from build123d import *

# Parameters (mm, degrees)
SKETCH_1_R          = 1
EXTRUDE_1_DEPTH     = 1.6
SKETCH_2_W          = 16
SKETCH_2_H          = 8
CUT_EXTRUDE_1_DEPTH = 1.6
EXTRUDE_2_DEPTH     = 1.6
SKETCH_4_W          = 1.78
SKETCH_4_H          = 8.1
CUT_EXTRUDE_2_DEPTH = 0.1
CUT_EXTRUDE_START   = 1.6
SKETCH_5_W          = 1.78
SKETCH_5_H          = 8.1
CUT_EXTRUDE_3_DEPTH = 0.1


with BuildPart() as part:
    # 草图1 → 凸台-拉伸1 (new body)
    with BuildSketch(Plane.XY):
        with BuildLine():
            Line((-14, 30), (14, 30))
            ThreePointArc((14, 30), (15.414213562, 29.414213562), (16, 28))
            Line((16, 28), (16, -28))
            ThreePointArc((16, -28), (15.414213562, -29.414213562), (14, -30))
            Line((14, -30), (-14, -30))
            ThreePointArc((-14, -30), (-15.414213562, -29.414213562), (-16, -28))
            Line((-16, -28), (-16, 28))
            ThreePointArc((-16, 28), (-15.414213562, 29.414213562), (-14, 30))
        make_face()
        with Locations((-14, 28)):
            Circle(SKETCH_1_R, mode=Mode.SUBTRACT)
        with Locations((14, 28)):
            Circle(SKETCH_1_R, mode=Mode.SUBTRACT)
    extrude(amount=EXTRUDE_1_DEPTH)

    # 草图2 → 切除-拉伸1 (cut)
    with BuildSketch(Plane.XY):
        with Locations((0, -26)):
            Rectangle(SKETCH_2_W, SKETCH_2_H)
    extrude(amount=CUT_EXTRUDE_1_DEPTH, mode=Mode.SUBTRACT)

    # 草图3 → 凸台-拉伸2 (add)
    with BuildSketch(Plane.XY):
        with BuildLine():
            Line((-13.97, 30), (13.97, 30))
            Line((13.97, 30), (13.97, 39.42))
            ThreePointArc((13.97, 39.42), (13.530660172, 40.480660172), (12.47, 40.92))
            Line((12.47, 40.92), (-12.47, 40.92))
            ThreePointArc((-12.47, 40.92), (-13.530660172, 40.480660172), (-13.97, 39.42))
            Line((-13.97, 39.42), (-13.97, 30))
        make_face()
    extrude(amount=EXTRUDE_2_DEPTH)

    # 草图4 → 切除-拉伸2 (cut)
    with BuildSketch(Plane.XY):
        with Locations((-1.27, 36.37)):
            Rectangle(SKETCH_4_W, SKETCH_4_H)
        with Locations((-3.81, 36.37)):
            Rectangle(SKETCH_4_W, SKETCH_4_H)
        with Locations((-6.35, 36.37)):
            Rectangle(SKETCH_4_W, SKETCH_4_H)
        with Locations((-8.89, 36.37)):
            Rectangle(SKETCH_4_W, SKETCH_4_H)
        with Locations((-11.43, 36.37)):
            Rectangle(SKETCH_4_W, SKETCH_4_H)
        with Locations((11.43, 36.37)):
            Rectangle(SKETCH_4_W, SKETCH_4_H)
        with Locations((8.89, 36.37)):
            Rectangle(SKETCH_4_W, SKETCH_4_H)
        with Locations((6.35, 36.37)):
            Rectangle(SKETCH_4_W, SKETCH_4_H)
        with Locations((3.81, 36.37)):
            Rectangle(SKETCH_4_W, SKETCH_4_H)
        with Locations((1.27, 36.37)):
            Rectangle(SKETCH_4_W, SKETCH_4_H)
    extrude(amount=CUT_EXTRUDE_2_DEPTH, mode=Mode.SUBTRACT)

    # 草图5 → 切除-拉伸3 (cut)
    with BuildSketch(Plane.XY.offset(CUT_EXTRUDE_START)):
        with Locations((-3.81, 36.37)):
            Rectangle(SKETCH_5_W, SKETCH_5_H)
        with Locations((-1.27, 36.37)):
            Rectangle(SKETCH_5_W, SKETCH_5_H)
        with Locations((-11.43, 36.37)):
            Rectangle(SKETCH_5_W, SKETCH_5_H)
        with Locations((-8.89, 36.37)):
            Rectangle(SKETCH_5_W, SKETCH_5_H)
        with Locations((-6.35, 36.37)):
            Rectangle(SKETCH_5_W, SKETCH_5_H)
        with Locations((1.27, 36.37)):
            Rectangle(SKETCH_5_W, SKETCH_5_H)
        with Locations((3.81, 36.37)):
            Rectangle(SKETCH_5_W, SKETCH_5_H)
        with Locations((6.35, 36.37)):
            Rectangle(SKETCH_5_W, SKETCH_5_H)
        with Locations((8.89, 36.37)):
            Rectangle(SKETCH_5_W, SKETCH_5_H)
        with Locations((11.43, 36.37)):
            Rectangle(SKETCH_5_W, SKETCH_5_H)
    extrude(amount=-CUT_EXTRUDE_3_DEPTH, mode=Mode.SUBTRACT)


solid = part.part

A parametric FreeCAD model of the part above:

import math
import FreeCAD as App
import Part
import Sketcher
from FreeCAD import Vector


def add_polygon(sketch, points):
    """Adds a closed chain of lines whose ends are joined by coincident constraints."""
    first, n = sketch.GeometryCount, len(points)
    for a, b in zip(points, points[1:] + points[:1]):
        sketch.addGeometry(Part.LineSegment(App.Vector(*a, 0), App.Vector(*b, 0)), False)
    for i in range(n):
        sketch.addConstraint(Sketcher.Constraint("Coincident", first + i, 2, first + (i + 1) % n, 1))

doc = App.newDocument("Part")
body = doc.addObject("PartDesign::Body", "Body")

# Sketch on XY plane
sketch1 = body.newObject("Sketcher::SketchObject", "Sketch")
sketch1.AttachmentSupport = (doc.getObject("XY_Plane"), [""])
sketch1.MapMode = "FlatFace"
sketch1.addGeometry([
    Part.LineSegment(Vector(14, 30, 0), Vector(-14, 30, 0)),  # 0
    Part.ArcOfCircle(Part.Circle(Vector(-14, 28, 0), Vector(0, 0, 1), 2), math.radians(90), math.radians(180)),  # 1
    Part.LineSegment(Vector(-16, 28, 0), Vector(-16, -28, 0)),  # 2
    Part.ArcOfCircle(Part.Circle(Vector(-14, -28, 0), Vector(0, 0, 1), 2), math.radians(-180), math.radians(-90)),  # 3
    Part.LineSegment(Vector(-14, -30, 0), Vector(14, -30, 0)),  # 4
    Part.ArcOfCircle(Part.Circle(Vector(14, -28, 0), Vector(0, 0, 1), 2), math.radians(-90), math.radians(0)),  # 5
    Part.LineSegment(Vector(16, -28, 0), Vector(16, 28, 0)),  # 6
    Part.ArcOfCircle(Part.Circle(Vector(14, 28, 0), Vector(0, 0, 1), 2), math.radians(0), math.radians(90)),  # 7
    Part.Circle(Vector(14, 28, 0), Vector(0, 0, 1), 1),  # 8
    Part.Circle(Vector(-14, 28, 0), Vector(0, 0, 1), 1),  # 9
], False)
sketch1.addConstraint([
    Sketcher.Constraint("Tangent", 0, 2, 1, 1),
    Sketcher.Constraint("Tangent", 1, 2, 2, 1),
    Sketcher.Constraint("Tangent", 2, 2, 3, 1),
    Sketcher.Constraint("Tangent", 3, 2, 4, 1),
    Sketcher.Constraint("Tangent", 4, 2, 5, 1),
    Sketcher.Constraint("Tangent", 5, 2, 6, 1),
    Sketcher.Constraint("Tangent", 6, 2, 7, 1),
    Sketcher.Constraint("Tangent", 7, 2, 0, 1),
    Sketcher.Constraint("Horizontal", 0),
    Sketcher.Constraint("Vertical", 2),
    Sketcher.Constraint("Horizontal", 4),
    Sketcher.Constraint("Vertical", 6),
    Sketcher.Constraint("Coincident", 8, 3, 7, 3),
    Sketcher.Constraint("Coincident", 9, 3, 1, 3),
    Sketcher.Constraint("Equal", 1, 3),
    Sketcher.Constraint("Equal", 3, 5),
    Sketcher.Constraint("Equal", 5, 7),
    Sketcher.Constraint("Equal", 8, 9),
    Sketcher.Constraint("Symmetric", 1, 3, 5, 3, -1, 1),
    Sketcher.Constraint("Diameter", 8, 2.0),
    Sketcher.Constraint("Radius", 1, 2.0),
    Sketcher.Constraint("DistanceX", 0, 2, 0, 1, 28.0),
    Sketcher.Constraint("DistanceY", 2, 2, 2, 1, 56.0),
])
pad1 = body.newObject("PartDesign::Pad", "Pad")
pad1.Profile = sketch1
pad1.Length = 1.6

# Sketch on XY plane
sketch2 = body.newObject("Sketcher::SketchObject", "Sketch001")
sketch2.AttachmentSupport = (doc.getObject("XY_Plane"), [""])
sketch2.MapMode = "FlatFace"
add_polygon(sketch2, [(-8, -22), (-8, -30), (8, -30), (8, -22)])  # lines 0-3
sketch2.addConstraint([
    Sketcher.Constraint("Vertical", 0),
    Sketcher.Constraint("Horizontal", 1),
    Sketcher.Constraint("Vertical", 2),
    Sketcher.Constraint("Horizontal", 3),
    Sketcher.Constraint("DistanceX", 1, 1, 1, 2, 16.0),
    Sketcher.Constraint("DistanceY", 0, 2, 0, 1, 8.0),
    Sketcher.Constraint("DistanceX", 0, 2, -1, 1, 8.0),
    Sketcher.Constraint("DistanceY", 0, 2, -1, 1, 30.0),
])
pocket1 = body.newObject("PartDesign::Pocket", "Pocket")
pocket1.Profile = sketch2
pocket1.Length = 1.6
pocket1.Reversed = True

# Sketch on XY plane
sketch3 = body.newObject("Sketcher::SketchObject", "Sketch002")
sketch3.AttachmentSupport = (doc.getObject("XY_Plane"), [""])
sketch3.MapMode = "FlatFace"
sketch3.addGeometry([
    Part.LineSegment(Vector(-14, 30, 0), Vector(14, 30, 0)),  # 0
    Part.LineSegment(Vector(14, 30, 0), Vector(14, 39.4, 0)),  # 1
    Part.ArcOfCircle(Part.Circle(Vector(12.5, 39.4, 0), Vector(0, 0, 1), 1.5), math.radians(0), math.radians(90)),  # 2
    Part.LineSegment(Vector(12.5, 40.9, 0), Vector(-12.5, 40.9, 0)),  # 3
    Part.ArcOfCircle(Part.Circle(Vector(-12.5, 39.4, 0), Vector(0, 0, 1), 1.5), math.radians(90), math.radians(180)),  # 4
    Part.LineSegment(Vector(-14, 39.4, 0), Vector(-14, 30, 0)),  # 5
], False)
sketch3.addConstraint([
    Sketcher.Constraint("Coincident", 0, 2, 1, 1),
    Sketcher.Constraint("Tangent", 1, 2, 2, 1),
    Sketcher.Constraint("Tangent", 2, 2, 3, 1),
    Sketcher.Constraint("Tangent", 3, 2, 4, 1),
    Sketcher.Constraint("Tangent", 4, 2, 5, 1),
    Sketcher.Constraint("Coincident", 5, 2, 0, 1),
    Sketcher.Constraint("Horizontal", 0),
    Sketcher.Constraint("Vertical", 1),
    Sketcher.Constraint("Horizontal", 3),
    Sketcher.Constraint("Vertical", 5),
    Sketcher.Constraint("Equal", 2, 4),
    Sketcher.Constraint("Radius", 2, 1.5),
    Sketcher.Constraint("DistanceY", -1, 1, 0, 2, 30.0),
    Sketcher.Constraint("DistanceX", 0, 1, 0, 2, 27.94),
    Sketcher.Constraint("DistanceY", 1, 1, 1, 2, 9.42),
    Sketcher.Constraint("DistanceX", -1, 1, 2, 3, 12.47),
])
pad2 = body.newObject("PartDesign::Pad", "Pad001")
pad2.Profile = sketch3
pad2.Length = 1.6

# Sketch on XY plane
sketch4 = body.newObject("Sketcher::SketchObject", "Sketch003")
sketch4.AttachmentSupport = (doc.getObject("XY_Plane"), [""])
sketch4.MapMode = "FlatFace"
add_polygon(sketch4, [(-2.2, 40.4), (-2.2, 32.3), (-0.4, 32.3), (-0.4, 40.4)])  # lines 0-3
add_polygon(sketch4, [(-4.7, 40.4), (-4.7, 32.3), (-2.9, 32.3), (-2.9, 40.4)])  # lines 4-7
add_polygon(sketch4, [(-7.2, 40.4), (-7.2, 32.3), (-5.5, 32.3), (-5.5, 40.4)])  # lines 8-11
add_polygon(sketch4, [(-9.8, 40.4), (-9.8, 32.3), (-8, 32.3), (-8, 40.4)])  # lines 12-15
add_polygon(sketch4, [(-12.3, 40.4), (-12.3, 32.3), (-10.5, 32.3), (-10.5, 40.4)])  # lines 16-19
add_polygon(sketch4, [(10.5, 40.4), (10.5, 32.3), (12.3, 32.3), (12.3, 40.4)])  # lines 20-23
add_polygon(sketch4, [(8, 40.4), (8, 32.3), (9.8, 32.3), (9.8, 40.4)])  # lines 24-27
add_polygon(sketch4, [(5.5, 40.4), (5.5, 32.3), (7.2, 32.3), (7.2, 40.4)])  # lines 28-31
add_polygon(sketch4, [(2.9, 40.4), (2.9, 32.3), (4.7, 32.3), (4.7, 40.4)])  # lines 32-35
add_polygon(sketch4, [(0.4, 40.4), (0.4, 32.3), (2.2, 32.3), (2.2, 40.4)])  # lines 36-39
sketch4.addConstraint([
    Sketcher.Constraint("Vertical", 0),
    Sketcher.Constraint("Horizontal", 1),
    Sketcher.Constraint("Vertical", 2),
    Sketcher.Constraint("Horizontal", 3),
    Sketcher.Constraint("Vertical", 4),
    Sketcher.Constraint("Horizontal", 5),
    Sketcher.Constraint("Vertical", 6),
    Sketcher.Constraint("Horizontal", 7),
    Sketcher.Constraint("Vertical", 8),
    Sketcher.Constraint("Horizontal", 9),
    Sketcher.Constraint("Vertical", 10),
    Sketcher.Constraint("Horizontal", 11),
    Sketcher.Constraint("Vertical", 12),
    Sketcher.Constraint("Horizontal", 13),
    Sketcher.Constraint("Vertical", 14),
    Sketcher.Constraint("Horizontal", 15),
    Sketcher.Constraint("Vertical", 16),
    Sketcher.Constraint("Horizontal", 17),
    Sketcher.Constraint("Vertical", 18),
    Sketcher.Constraint("Horizontal", 19),
    Sketcher.Constraint("Vertical", 20),
    Sketcher.Constraint("Horizontal", 21),
    Sketcher.Constraint("Vertical", 22),
    Sketcher.Constraint("Horizontal", 23),
    Sketcher.Constraint("Vertical", 24),
    Sketcher.Constraint("Horizontal", 25),
    Sketcher.Constraint("Vertical", 26),
    Sketcher.Constraint("Horizontal", 27),
    Sketcher.Constraint("Vertical", 28),
    Sketcher.Constraint("Horizontal", 29),
    Sketcher.Constraint("Vertical", 30),
    Sketcher.Constraint("Horizontal", 31),
    Sketcher.Constraint("Vertical", 32),
    Sketcher.Constraint("Horizontal", 33),
    Sketcher.Constraint("Vertical", 34),
    Sketcher.Constraint("Horizontal", 35),
    Sketcher.Constraint("Vertical", 36),
    Sketcher.Constraint("Horizontal", 37),
    Sketcher.Constraint("Vertical", 38),
    Sketcher.Constraint("Horizontal", 39),
    Sketcher.Constraint("Symmetric", 17, 2, 20, 2, -2),
    Sketcher.Constraint("Symmetric", 19, 2, 22, 2, -2),
    Sketcher.Constraint("Symmetric", 13, 2, 24, 2, -2),
    Sketcher.Constraint("Symmetric", 15, 2, 26, 2, -2),
    Sketcher.Constraint("Symmetric", 9, 2, 28, 2, -2),
    Sketcher.Constraint("Symmetric", 11, 2, 30, 2, -2),
    Sketcher.Constraint("Symmetric", 5, 2, 32, 2, -2),
    Sketcher.Constraint("Symmetric", 7, 2, 34, 2, -2),
    Sketcher.Constraint("Symmetric", 1, 2, 36, 2, -2),
    Sketcher.Constraint("Symmetric", 3, 2, 38, 2, -2),
    Sketcher.Constraint("Horizontal", 1, 2, 4, 2),
    Sketcher.Constraint("Horizontal", 3, 2, 6, 2),
    Sketcher.Constraint("Horizontal", 5, 2, 8, 2),
    Sketcher.Constraint("Horizontal", 7, 2, 10, 2),
    Sketcher.Constraint("Horizontal", 9, 2, 12, 2),
    Sketcher.Constraint("Horizontal", 11, 2, 14, 2),
    Sketcher.Constraint("Horizontal", 13, 2, 16, 2),
    Sketcher.Constraint("Horizontal", 15, 2, 18, 2),
    Sketcher.Constraint("Equal", 3, 5),
    Sketcher.Constraint("Equal", 7, 9),
    Sketcher.Constraint("Equal", 11, 13),
    Sketcher.Constraint("Equal", 15, 17),
    Sketcher.Constraint("DistanceY", 0, 2, 0, 1, 8.1),
    Sketcher.Constraint("DistanceX", 13, 2, -1, 1, 8.0),
    Sketcher.Constraint("DistanceX", 1, 1, 1, 2, 1.78),
    Sketcher.Constraint("DistanceX", 4, 2, -1, 1, 4.7),
    Sketcher.Constraint("DistanceX", 9, 2, 0, 2, 3.3),
    Sketcher.Constraint("DistanceX", 17, 2, 8, 2, 3.3),
    Sketcher.Constraint("DistanceX", 0, 2, 20, 2, 12.7),
    Sketcher.Constraint("DistanceY", -1, 1, 0, 2, 32.32),
])
pocket2 = body.newObject("PartDesign::Pocket", "Pocket001")
pocket2.Profile = sketch4
pocket2.Length = 0.1
pocket2.Reversed = True

# Sketch on XY plane
sketch5 = body.newObject("Sketcher::SketchObject", "Sketch004")
sketch5.AttachmentSupport = (doc.getObject("XY_Plane"), [""])
sketch5.MapMode = "FlatFace"
sketch5.AttachmentOffset = App.Placement(Vector(0, 0, 1.6), App.Rotation())
add_polygon(sketch5, [(-4.7, 40.4), (-4.7, 32.3), (-2.9, 32.3), (-2.9, 40.4)])  # lines 0-3
add_polygon(sketch5, [(-2.2, 40.4), (-2.2, 32.3), (-0.4, 32.3), (-0.4, 40.4)])  # lines 4-7
add_polygon(sketch5, [(-12.3, 40.4), (-12.3, 32.3), (-10.5, 32.3), (-10.5, 40.4)])  # lines 8-11
add_polygon(sketch5, [(-9.8, 40.4), (-9.8, 32.3), (-8, 32.3), (-8, 40.4)])  # lines 12-15
add_polygon(sketch5, [(-7.2, 40.4), (-7.2, 32.3), (-5.5, 32.3), (-5.5, 40.4)])  # lines 16-19
add_polygon(sketch5, [(0.4, 40.4), (0.4, 32.3), (2.2, 32.3), (2.2, 40.4)])  # lines 20-23
add_polygon(sketch5, [(2.9, 40.4), (2.9, 32.3), (4.7, 32.3), (4.7, 40.4)])  # lines 24-27
add_polygon(sketch5, [(5.5, 40.4), (5.5, 32.3), (7.2, 32.3), (7.2, 40.4)])  # lines 28-31
add_polygon(sketch5, [(8, 40.4), (8, 32.3), (9.8, 32.3), (9.8, 40.4)])  # lines 32-35
add_polygon(sketch5, [(10.5, 40.4), (10.5, 32.3), (12.3, 32.3), (12.3, 40.4)])  # lines 36-39
sketch5.addConstraint([
    Sketcher.Constraint("Vertical", 0),
    Sketcher.Constraint("Horizontal", 1),
    Sketcher.Constraint("Vertical", 2),
    Sketcher.Constraint("Horizontal", 3),
    Sketcher.Constraint("Vertical", 4),
    Sketcher.Constraint("Horizontal", 5),
    Sketcher.Constraint("Vertical", 6),
    Sketcher.Constraint("Horizontal", 7),
    Sketcher.Constraint("Vertical", 8),
    Sketcher.Constraint("Horizontal", 9),
    Sketcher.Constraint("Vertical", 10),
    Sketcher.Constraint("Horizontal", 11),
    Sketcher.Constraint("Vertical", 12),
    Sketcher.Constraint("Horizontal", 13),
    Sketcher.Constraint("Vertical", 14),
    Sketcher.Constraint("Horizontal", 15),
    Sketcher.Constraint("Vertical", 16),
    Sketcher.Constraint("Horizontal", 17),
    Sketcher.Constraint("Vertical", 18),
    Sketcher.Constraint("Horizontal", 19),
    Sketcher.Constraint("Vertical", 20),
    Sketcher.Constraint("Horizontal", 21),
    Sketcher.Constraint("Vertical", 22),
    Sketcher.Constraint("Horizontal", 23),
    Sketcher.Constraint("Vertical", 24),
    Sketcher.Constraint("Horizontal", 25),
    Sketcher.Constraint("Vertical", 26),
    Sketcher.Constraint("Horizontal", 27),
    Sketcher.Constraint("Vertical", 28),
    Sketcher.Constraint("Horizontal", 29),
    Sketcher.Constraint("Vertical", 30),
    Sketcher.Constraint("Horizontal", 31),
    Sketcher.Constraint("Vertical", 32),
    Sketcher.Constraint("Horizontal", 33),
    Sketcher.Constraint("Vertical", 34),
    Sketcher.Constraint("Horizontal", 35),
    Sketcher.Constraint("Vertical", 36),
    Sketcher.Constraint("Horizontal", 37),
    Sketcher.Constraint("Vertical", 38),
    Sketcher.Constraint("Horizontal", 39),
    Sketcher.Constraint("Symmetric", 5, 2, 20, 2, -2),
    Sketcher.Constraint("Symmetric", 7, 2, 22, 2, -2),
    Sketcher.Constraint("Symmetric", 1, 2, 24, 2, -2),
    Sketcher.Constraint("Symmetric", 3, 2, 26, 2, -2),
    Sketcher.Constraint("Symmetric", 17, 2, 28, 2, -2),
    Sketcher.Constraint("Symmetric", 19, 2, 30, 2, -2),
    Sketcher.Constraint("Symmetric", 13, 2, 32, 2, -2),
    Sketcher.Constraint("Symmetric", 15, 2, 34, 2, -2),
    Sketcher.Constraint("Symmetric", 9, 2, 36, 2, -2),
    Sketcher.Constraint("Symmetric", 11, 2, 38, 2, -2),
    Sketcher.Constraint("Horizontal", 1, 2, 4, 2),
    Sketcher.Constraint("Horizontal", 3, 2, 6, 2),
    Sketcher.Constraint("Horizontal", 5, 2, 8, 2),
    Sketcher.Constraint("Horizontal", 7, 2, 10, 2),
    Sketcher.Constraint("Horizontal", 9, 2, 12, 2),
    Sketcher.Constraint("Horizontal", 11, 2, 14, 2),
    Sketcher.Constraint("Horizontal", 13, 2, 16, 2),
    Sketcher.Constraint("Horizontal", 15, 2, 18, 2),
    Sketcher.Constraint("Equal", 3, 5),
    Sketcher.Constraint("Equal", 7, 9),
    Sketcher.Constraint("Equal", 11, 13),
    Sketcher.Constraint("Equal", 15, 17),
    Sketcher.Constraint("DistanceY", 0, 2, 0, 1, 8.1),
    Sketcher.Constraint("DistanceX", 13, 2, -1, 1, 8.0),
    Sketcher.Constraint("DistanceX", 1, 1, 1, 2, 1.78),
    Sketcher.Constraint("DistanceX", 0, 2, -1, 1, 4.7),
    Sketcher.Constraint("DistanceX", 8, 2, 1, 2, 9.4),
    Sketcher.Constraint("DistanceX", 9, 2, 16, 2, 3.3),
    Sketcher.Constraint("DistanceX", 17, 2, 4, 2, 3.3),
    Sketcher.Constraint("DistanceY", -1, 1, 0, 2, 32.32),
])
pocket3 = body.newObject("PartDesign::Pocket", "Pocket002")
pocket3.Profile = sketch5
pocket3.Length = 0.1

doc.recompute()
